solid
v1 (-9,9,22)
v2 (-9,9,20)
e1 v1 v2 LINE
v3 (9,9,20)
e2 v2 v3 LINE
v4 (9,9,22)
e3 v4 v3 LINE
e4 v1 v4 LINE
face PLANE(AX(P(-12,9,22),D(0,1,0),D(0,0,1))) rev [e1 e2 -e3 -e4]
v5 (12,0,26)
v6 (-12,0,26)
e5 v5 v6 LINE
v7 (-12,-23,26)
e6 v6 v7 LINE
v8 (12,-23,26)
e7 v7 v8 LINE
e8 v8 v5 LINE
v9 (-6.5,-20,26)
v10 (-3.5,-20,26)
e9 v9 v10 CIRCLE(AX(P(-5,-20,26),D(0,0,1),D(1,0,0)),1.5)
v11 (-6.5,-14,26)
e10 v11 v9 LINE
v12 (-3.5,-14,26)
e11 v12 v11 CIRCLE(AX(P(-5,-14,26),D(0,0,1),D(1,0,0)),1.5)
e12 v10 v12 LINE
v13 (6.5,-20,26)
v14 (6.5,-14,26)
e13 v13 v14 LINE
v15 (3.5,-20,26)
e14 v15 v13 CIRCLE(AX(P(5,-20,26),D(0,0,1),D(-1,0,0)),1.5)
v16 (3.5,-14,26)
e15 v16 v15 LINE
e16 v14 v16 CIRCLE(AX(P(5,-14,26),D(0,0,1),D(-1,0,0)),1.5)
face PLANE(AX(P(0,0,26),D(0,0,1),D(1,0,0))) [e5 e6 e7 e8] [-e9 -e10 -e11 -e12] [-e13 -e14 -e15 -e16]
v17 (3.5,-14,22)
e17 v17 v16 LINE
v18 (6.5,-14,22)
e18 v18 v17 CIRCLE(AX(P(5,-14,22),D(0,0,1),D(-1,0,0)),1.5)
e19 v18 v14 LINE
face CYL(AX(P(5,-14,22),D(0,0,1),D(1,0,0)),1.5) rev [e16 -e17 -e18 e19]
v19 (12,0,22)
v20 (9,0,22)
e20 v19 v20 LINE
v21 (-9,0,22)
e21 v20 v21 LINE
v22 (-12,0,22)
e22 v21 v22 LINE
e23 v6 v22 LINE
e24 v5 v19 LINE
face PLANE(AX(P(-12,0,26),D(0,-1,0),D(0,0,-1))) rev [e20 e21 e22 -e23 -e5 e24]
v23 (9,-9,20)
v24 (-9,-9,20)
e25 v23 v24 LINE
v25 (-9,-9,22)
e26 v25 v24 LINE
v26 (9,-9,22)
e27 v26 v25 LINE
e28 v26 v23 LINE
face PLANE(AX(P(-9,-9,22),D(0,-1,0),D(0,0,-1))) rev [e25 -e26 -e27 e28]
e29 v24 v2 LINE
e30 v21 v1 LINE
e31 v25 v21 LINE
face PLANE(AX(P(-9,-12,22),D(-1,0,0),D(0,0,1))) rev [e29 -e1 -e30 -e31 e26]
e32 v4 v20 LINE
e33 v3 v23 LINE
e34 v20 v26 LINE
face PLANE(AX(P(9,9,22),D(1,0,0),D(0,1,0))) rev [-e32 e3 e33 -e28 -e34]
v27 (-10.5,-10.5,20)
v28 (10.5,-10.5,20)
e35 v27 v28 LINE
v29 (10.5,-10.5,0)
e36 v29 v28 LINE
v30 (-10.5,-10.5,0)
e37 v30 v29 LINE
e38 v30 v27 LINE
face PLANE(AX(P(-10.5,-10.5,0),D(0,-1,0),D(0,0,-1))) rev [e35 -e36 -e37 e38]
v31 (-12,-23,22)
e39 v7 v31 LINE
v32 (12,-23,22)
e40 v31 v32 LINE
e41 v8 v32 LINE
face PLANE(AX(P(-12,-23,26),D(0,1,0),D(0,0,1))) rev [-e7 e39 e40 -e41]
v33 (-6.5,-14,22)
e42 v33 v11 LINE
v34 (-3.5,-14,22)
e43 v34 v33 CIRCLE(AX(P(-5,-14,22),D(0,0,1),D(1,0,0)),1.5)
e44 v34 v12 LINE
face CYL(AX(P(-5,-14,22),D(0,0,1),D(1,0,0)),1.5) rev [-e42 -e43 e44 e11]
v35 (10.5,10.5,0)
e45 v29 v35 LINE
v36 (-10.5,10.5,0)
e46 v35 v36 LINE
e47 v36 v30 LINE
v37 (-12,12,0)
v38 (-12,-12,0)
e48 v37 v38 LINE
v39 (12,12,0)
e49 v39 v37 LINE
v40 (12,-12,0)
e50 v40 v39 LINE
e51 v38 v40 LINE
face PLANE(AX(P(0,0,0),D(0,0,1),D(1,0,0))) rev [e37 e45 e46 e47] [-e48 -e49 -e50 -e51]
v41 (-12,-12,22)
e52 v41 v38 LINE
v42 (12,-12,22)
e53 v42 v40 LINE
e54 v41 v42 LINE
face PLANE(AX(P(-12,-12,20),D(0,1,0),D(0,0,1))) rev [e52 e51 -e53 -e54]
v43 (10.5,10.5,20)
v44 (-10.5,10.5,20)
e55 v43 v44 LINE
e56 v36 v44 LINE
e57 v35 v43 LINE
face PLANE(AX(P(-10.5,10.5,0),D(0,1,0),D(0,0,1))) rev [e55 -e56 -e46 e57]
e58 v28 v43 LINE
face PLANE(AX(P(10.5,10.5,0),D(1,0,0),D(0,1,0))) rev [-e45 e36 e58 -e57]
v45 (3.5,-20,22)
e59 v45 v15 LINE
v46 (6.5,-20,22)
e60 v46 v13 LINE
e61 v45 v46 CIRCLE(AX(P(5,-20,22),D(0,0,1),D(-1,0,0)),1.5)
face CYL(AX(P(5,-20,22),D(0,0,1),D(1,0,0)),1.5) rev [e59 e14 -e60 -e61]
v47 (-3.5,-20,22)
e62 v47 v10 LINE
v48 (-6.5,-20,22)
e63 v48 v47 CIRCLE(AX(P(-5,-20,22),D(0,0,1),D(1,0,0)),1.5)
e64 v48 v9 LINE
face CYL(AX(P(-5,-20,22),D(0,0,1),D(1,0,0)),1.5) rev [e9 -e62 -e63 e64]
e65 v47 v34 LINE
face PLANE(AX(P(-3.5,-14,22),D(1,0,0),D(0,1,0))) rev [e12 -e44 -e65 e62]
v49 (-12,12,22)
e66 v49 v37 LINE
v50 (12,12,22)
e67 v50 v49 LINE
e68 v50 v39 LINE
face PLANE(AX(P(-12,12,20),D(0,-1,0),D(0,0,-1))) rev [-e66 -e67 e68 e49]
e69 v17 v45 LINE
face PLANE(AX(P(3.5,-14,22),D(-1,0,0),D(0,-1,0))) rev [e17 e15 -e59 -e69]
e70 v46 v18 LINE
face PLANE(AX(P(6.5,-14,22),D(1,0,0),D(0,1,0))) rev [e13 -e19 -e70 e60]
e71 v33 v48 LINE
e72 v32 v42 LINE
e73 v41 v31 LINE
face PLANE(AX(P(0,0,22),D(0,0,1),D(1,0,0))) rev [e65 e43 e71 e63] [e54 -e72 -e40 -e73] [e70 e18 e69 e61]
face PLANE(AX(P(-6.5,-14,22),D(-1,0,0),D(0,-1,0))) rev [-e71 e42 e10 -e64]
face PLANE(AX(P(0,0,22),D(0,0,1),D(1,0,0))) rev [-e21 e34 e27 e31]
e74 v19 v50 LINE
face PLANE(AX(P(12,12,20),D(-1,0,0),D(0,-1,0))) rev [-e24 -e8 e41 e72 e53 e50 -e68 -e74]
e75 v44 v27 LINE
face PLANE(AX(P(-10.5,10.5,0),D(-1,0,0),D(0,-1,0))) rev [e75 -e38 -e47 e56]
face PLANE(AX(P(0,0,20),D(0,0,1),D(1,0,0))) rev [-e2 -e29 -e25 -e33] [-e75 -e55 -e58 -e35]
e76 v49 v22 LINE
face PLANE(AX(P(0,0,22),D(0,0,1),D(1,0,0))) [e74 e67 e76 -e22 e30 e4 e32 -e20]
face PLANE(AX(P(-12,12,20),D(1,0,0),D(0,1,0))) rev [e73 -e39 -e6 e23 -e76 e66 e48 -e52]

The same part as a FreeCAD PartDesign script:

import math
import FreeCAD as App
import Part
import Sketcher

V = App.Vector
Q = App.Units.Quantity

doc = App.newDocument("Part")
body = doc.addObject("PartDesign::Body", "Body")

# Sketch on XY plane
sketch1 = doc.addObject("Sketcher::SketchObject", "Sketch")
body.addObject(sketch1)
sketch1.AttachmentSupport = (doc.XY_Plane, [""])
sketch1.MapMode = "FlatFace"
sketch1.addGeometry([
    Part.LineSegment(V(-12, 12, 0), V(-12, -12, 0)),
    Part.LineSegment(V(-12, -12, 0), V(12, -12, 0)),
    Part.LineSegment(V(12, -12, 0), V(12, 12, 0)),
    Part.LineSegment(V(12, 12, 0), V(-12, 12, 0)),
], False)
sketch1.addConstraint([
    Sketcher.Constraint("Coincident", 0, 2, 1, 1),
    Sketcher.Constraint("Coincident", 1, 2, 2, 1),
    Sketcher.Constraint("Coincident", 2, 2, 3, 1),
    Sketcher.Constraint("Coincident", 3, 2, 0, 1),
    Sketcher.Constraint("Vertical", 0),
    Sketcher.Constraint("Horizontal", 1),
    Sketcher.Constraint("Vertical", 2),
    Sketcher.Constraint("Horizontal", 3),
    Sketcher.Constraint("Symmetric", 0, 2, 2, 2, -1, 1),
    Sketcher.Constraint("Equal", 3, 0),
    Sketcher.Constraint("DistanceX", 1, 1, 1, 2, Q("24 mm")),
])
pad1 = doc.addObject("PartDesign::Pad", "Pad")
body.addObject(pad1)
pad1.Profile = sketch1
pad1.Length = 20

# Sketch on XY plane
sketch2 = doc.addObject("Sketcher::SketchObject", "Sketch001")
body.addObject(sketch2)
sketch2.AttachmentSupport = (doc.XY_Plane, [""])
sketch2.MapMode = "FlatFace"
sketch2.AttachmentOffset = App.Placement(V(0, 0, 20), App.Rotation())
sketch2.addGeometry([
    Part.LineSegment(V(-10.5, 10.5, 0), V(-10.5, -10.5, 0)),
    Part.LineSegment(V(-10.5, -10.5, 0), V(10.5, -10.5, 0)),
    Part.LineSegment(V(10.5, -10.5, 0), V(10.5, 10.5, 0)),
    Part.LineSegment(V(10.5, 10.5, 0), V(-10.5, 10.5, 0)),
], False)
sketch2.addConstraint([
    Sketcher.Constraint("Coincident", 0, 2, 1, 1),
    Sketcher.Constraint("Coincident", 1, 2, 2, 1),
    Sketcher.Constraint("Coincident", 2, 2, 3, 1),
    Sketcher.Constraint("Coincident", 3, 2, 0, 1),
    Sketcher.Constraint("Vertical", 0),
    Sketcher.Constraint("Horizontal", 1),
    Sketcher.Constraint("Vertical", 2),
    Sketcher.Constraint("Horizontal", 3),
    Sketcher.Constraint("Symmetric", 0, 2, 2, 2, -1, 1),
    Sketcher.Constraint("Equal", 3, 0),
    Sketcher.Constraint("DistanceX", 1, 1, 1, 2, Q("21 mm")),
])
pocket1 = doc.addObject("PartDesign::Pocket", "Pocket")
body.addObject(pocket1)
pocket1.Profile = sketch2
pocket1.Length = 20

# Sketch on XY plane
sketch3 = doc.addObject("Sketcher::SketchObject", "Sketch002")
body.addObject(sketch3)
sketch3.AttachmentSupport = (doc.XY_Plane, [""])
sketch3.MapMode = "FlatFace"
sketch3.AttachmentOffset = App.Placement(V(0, 0, 20), App.Rotation())
sketch3.addGeometry([
    Part.LineSegment(V(-12, 12, 0), V(-12, 9, 0)),
    Part.LineSegment(V(-12, 9, 0), V(12, 9, 0)),
    Part.LineSegment(V(12, 9, 0), V(12, 12, 0)),
    Part.LineSegment(V(12, 12, 0), V(-12, 12, 0)),
], False)
sketch3.addConstraint([
    Sketcher.Constraint("Coincident", 0, 2, 1, 1),
    Sketcher.Constraint("Coincident", 1, 2, 2, 1),
    Sketcher.Constraint("Coincident", 2, 2, 3, 1),
    Sketcher.Constraint("Coincident", 3, 2, 0, 1),
    Sketcher.Constraint("Vertical", 0),
    Sketcher.Constraint("Horizontal", 1),
    Sketcher.Constraint("Vertical", 2),
    Sketcher.Constraint("Horizontal", 3),
    Sketcher.Constraint("DistanceX", 1, 1, 1, 2, Q("24 mm")),
    Sketcher.Constraint("DistanceY", 0, 2, 0, 1, Q("3 mm")),
    Sketcher.Constraint("DistanceX", 0, 2, -1, 1, Q("12 mm")),
    Sketcher.Constraint("DistanceY", -1, 1, 0, 2, Q("9 mm")),
])
pad2 = doc.addObject("PartDesign::Pad", "Pad001")
body.addObject(pad2)
pad2.Profile = sketch3
pad2.Length = 2

# Sketch on XY plane
sketch4 = doc.addObject("Sketcher::SketchObject", "Sketch003")
body.addObject(sketch4)
sketch4.AttachmentSupport = (doc.XY_Plane, [""])
sketch4.MapMode = "FlatFace"
sketch4.AttachmentOffset = App.Placement(V(0, 0, 20), App.Rotation())
sketch4.addGeometry([
    Part.LineSegment(V(-12, 9, 0), V(-12, -12, 0)),
    Part.LineSegment(V(-12, -12, 0), V(-9, -12, 0)),
    Part.LineSegment(V(-9, -12, 0), V(-9, 9, 0)),
    Part.LineSegment(V(-9, 9, 0), V(-12, 9, 0)),
], False)
sketch4.addConstraint([
    Sketcher.Constraint("Coincident", 0, 2, 1, 1),
    Sketcher.Constraint("Coincident", 1, 2, 2, 1),
    Sketcher.Constraint("Coincident", 2, 2, 3, 1),
    Sketcher.Constraint("Coincident", 3, 2, 0, 1),
    Sketcher.Constraint("Vertical", 0),
    Sketcher.Constraint("Horizontal", 1),
    Sketcher.Constraint("Vertical", 2),
    Sketcher.Constraint("Horizontal", 3),
    Sketcher.Constraint("DistanceX", 1, 1, 1, 2, Q("3 mm")),
    Sketcher.Constraint("DistanceY", 0, 2, 0, 1, Q("21 mm")),
    Sketcher.Constraint("DistanceX", 0, 2, -1, 1, Q("12 mm")),
    Sketcher.Constraint("DistanceY", 0, 2, -1, 1, Q("12 mm")),
])
pad3 = doc.addObject("PartDesign::Pad", "Pad002")
body.addObject(pad3)
pad3.Profile = sketch4
pad3.Length = 2

# Sketch on XY plane
sketch5 = doc.addObject("Sketcher::SketchObject", "Sketch004")
body.addObject(sketch5)
sketch5.AttachmentSupport = (doc.XY_Plane, [""])
sketch5.MapMode = "FlatFace"
sketch5.AttachmentOffset = App.Placement(V(0, 0, 20), App.Rotation())
sketch5.addGeometry([
    Part.LineSegment(V(-9, -9, 0), V(-9, -12, 0)),
    Part.LineSegment(V(-9, -12, 0), V(12, -12, 0)),
    Part.LineSegment(V(12, -12, 0), V(12, -9, 0)),
    Part.LineSegment(V(12, -9, 0), V(-9, -9, 0)),
], False)
sketch5.addConstraint([
    Sketcher.Constraint("Coincident", 0, 2, 1, 1),
    Sketcher.Constraint("Coincident", 1, 2, 2, 1),
    Sketcher.Constraint("Coincident", 2, 2, 3, 1),
    Sketcher.Constraint("Coincident", 3, 2, 0, 1),
    Sketcher.Constraint("Vertical", 0),
    Sketcher.Constraint("Horizontal", 1),
    Sketcher.Constraint("Vertical", 2),
    Sketcher.Constraint("Horizontal", 3),
    Sketcher.Constraint("DistanceX", 1, 1, 1, 2, Q("21 mm")),
    Sketcher.Constraint("DistanceY", 0, 2, 0, 1, Q("3 mm")),
    Sketcher.Constraint("DistanceX", 0, 2, -1, 1, Q("9 mm")),
    Sketcher.Constraint("DistanceY", 0, 2, -1, 1, Q("12 mm")),
])
pad4 = doc.addObject("PartDesign::Pad", "Pad003")
body.addObject(pad4)
pad4.Profile = sketch5
pad4.Length = 2

# Sketch on XY plane
sketch6 = doc.addObject("Sketcher::SketchObject", "Sketch005")
body.addObject(sketch6)
sketch6.AttachmentSupport = (doc.XY_Plane, [""])
sketch6.MapMode = "FlatFace"
sketch6.AttachmentOffset = App.Placement(V(0, 0, 20), App.Rotation())
sketch6.addGeometry([
    Part.LineSegment(V(9, 9, 0), V(9, -9, 0)),
    Part.LineSegment(V(9, -9, 0), V(12, -9, 0)),
    Part.LineSegment(V(12, -9, 0), V(12, 9, 0)),
    Part.LineSegment(V(12, 9, 0), V(9, 9, 0)),
], False)
sketch6.addConstraint([
    Sketcher.Constraint("Coincident", 0, 2, 1, 1),
    Sketcher.Constraint("Coincident", 1, 2, 2, 1),
    Sketcher.Constraint("Coincident", 2, 2, 3, 1),
    Sketcher.Constraint("Coincident", 3, 2, 0, 1),
    Sketcher.Constraint("Vertical", 0),
    Sketcher.Constraint("Horizontal", 1),
    Sketcher.Constraint("Vertical", 2),
    Sketcher.Constraint("Horizontal", 3),
    Sketcher.Constraint("DistanceX", 1, 1, 1, 2, Q("3 mm")),
    Sketcher.Constraint("DistanceY", 0, 2, 0, 1, Q("18 mm")),
    Sketcher.Constraint("DistanceX", -1, 1, 0, 2, Q("9 mm")),
    Sketcher.Constraint("DistanceY", 0, 2, -1, 1, Q("9 mm")),
])
pad5 = doc.addObject("PartDesign::Pad", "Pad004")
body.addObject(pad5)
pad5.Profile = sketch6
pad5.Length = 2

# Sketch on XY plane
sketch7 = doc.addObject("Sketcher::SketchObject", "Sketch006")
body.addObject(sketch7)
sketch7.AttachmentSupport = (doc.XY_Plane, [""])
sketch7.MapMode = "FlatFace"
sketch7.AttachmentOffset = App.Placement(V(0, 0, 22), App.Rotation())
sketch7.addGeometry([
    Part.LineSegment(V(-12, 0, 0), V(-12, -23, 0)),
    Part.LineSegment(V(-12, -23, 0), V(12, -23, 0)),
    Part.LineSegment(V(12, -23, 0), V(12, 0, 0)),
    Part.LineSegment(V(12, 0, 0), V(-12, 0, 0)),
], False)
sketch7.addConstraint([
    Sketcher.Constraint("Coincident", 0, 2, 1, 1),
    Sketcher.Constraint("Coincident", 1, 2, 2, 1),
    Sketcher.Constraint("Coincident", 2, 2, 3, 1),
    Sketcher.Constraint("Coincident", 3, 2, 0, 1),
    Sketcher.Constraint("Vertical", 0),
    Sketcher.Constraint("Horizontal", 1),
    Sketcher.Constraint("Vertical", 2),
    Sketcher.Constraint("Horizontal", 3),
    Sketcher.Constraint("Symmetric", 2, 2, 3, 2, -1, 1),
    Sketcher.Constraint("DistanceX", 1, 1, 1, 2, Q("24 mm")),
    Sketcher.Constraint("DistanceY", 0, 2, 0, 1, Q("23 mm")),
])
pad6 = doc.addObject("PartDesign::Pad", "Pad005")
body.addObject(pad6)
pad6.Profile = sketch7
pad6.Length = 4

# Sketch on XY plane
sketch8 = doc.addObject("Sketcher::SketchObject", "Sketch007")
body.addObject(sketch8)
sketch8.AttachmentSupport = (doc.XY_Plane, [""])
sketch8.MapMode = "FlatFace"
sketch8.AttachmentOffset = App.Placement(V(0, 0, 26), App.Rotation())
sketch8.addGeometry([
    Part.LineSegment(V(-3.5, -20, 0), V(-3.5, -14, 0)),  # 0
    Part.ArcOfCircle(Part.Circle(V(-5, -14, 0), V(0, 0, 1), 1.5), math.radians(0), math.radians(180)),  # 1
    Part.LineSegment(V(-6.5, -14, 0), V(-6.5, -20, 0)),  # 2
    Part.ArcOfCircle(Part.Circle(V(-5, -20, 0), V(0, 0, 1), 1.5), math.radians(180), math.radians(360)),  # 3
    Part.LineSegment(V(3.5, -14, 0), V(3.5, -20, 0)),  # 4
    Part.ArcOfCircle(Part.Circle(V(5, -20, 0), V(0, 0, 1), 1.5), math.radians(180), math.radians(360)),  # 5
    Part.LineSegment(V(6.5, -20, 0), V(6.5, -14, 0)),  # 6
    Part.ArcOfCircle(Part.Circle(V(5, -14, 0), V(0, 0, 1), 1.5), math.radians(0), math.radians(180)),  # 7
], False)
sketch8.addConstraint([
    Sketcher.Constraint("Tangent", 0, 2, 1, 1),
    Sketcher.Constraint("Tangent", 1, 2, 2, 1),
    Sketcher.Constraint("Tangent", 2, 2, 3, 1),
    Sketcher.Constraint("Tangent", 3, 2, 0, 1),
    Sketcher.Constraint("Tangent", 4, 2, 5, 1),
    Sketcher.Constraint("Tangent", 5, 2, 6, 1),
    Sketcher.Constraint("Tangent", 6, 2, 7, 1),
    Sketcher.Constraint("Tangent", 7, 2, 4, 1),
    Sketcher.Constraint("Vertical", 0),
    Sketcher.Constraint("Vertical", 2),
    Sketcher.Constraint("Vertical", 4),
    Sketcher.Constraint("Vertical", 6),
    Sketcher.Constraint("Equal", 3, 5),
    Sketcher.Constraint("Symmetric", 3, 3, 5, 3, -2),
    Sketcher.Constraint("Horizontal", 1, 3, 7, 3),
    Sketcher.Constraint("Radius", 1, Q("1.5 mm")),
    Sketcher.Constraint("DistanceY", 0, 1, 0, 2, Q("6 mm")),
    Sketcher.Constraint("DistanceX", 1, 3, -1, 1, Q("5 mm")),
    Sketcher.Constraint("DistanceY", 1, 3, -1, 1, Q("14 mm")),
])
pocket2 = doc.addObject("PartDesign::Pocket", "Pocket001")
body.addObject(pocket2)
pocket2.Profile = sketch8
pocket2.Length = 4

doc.recompute()
